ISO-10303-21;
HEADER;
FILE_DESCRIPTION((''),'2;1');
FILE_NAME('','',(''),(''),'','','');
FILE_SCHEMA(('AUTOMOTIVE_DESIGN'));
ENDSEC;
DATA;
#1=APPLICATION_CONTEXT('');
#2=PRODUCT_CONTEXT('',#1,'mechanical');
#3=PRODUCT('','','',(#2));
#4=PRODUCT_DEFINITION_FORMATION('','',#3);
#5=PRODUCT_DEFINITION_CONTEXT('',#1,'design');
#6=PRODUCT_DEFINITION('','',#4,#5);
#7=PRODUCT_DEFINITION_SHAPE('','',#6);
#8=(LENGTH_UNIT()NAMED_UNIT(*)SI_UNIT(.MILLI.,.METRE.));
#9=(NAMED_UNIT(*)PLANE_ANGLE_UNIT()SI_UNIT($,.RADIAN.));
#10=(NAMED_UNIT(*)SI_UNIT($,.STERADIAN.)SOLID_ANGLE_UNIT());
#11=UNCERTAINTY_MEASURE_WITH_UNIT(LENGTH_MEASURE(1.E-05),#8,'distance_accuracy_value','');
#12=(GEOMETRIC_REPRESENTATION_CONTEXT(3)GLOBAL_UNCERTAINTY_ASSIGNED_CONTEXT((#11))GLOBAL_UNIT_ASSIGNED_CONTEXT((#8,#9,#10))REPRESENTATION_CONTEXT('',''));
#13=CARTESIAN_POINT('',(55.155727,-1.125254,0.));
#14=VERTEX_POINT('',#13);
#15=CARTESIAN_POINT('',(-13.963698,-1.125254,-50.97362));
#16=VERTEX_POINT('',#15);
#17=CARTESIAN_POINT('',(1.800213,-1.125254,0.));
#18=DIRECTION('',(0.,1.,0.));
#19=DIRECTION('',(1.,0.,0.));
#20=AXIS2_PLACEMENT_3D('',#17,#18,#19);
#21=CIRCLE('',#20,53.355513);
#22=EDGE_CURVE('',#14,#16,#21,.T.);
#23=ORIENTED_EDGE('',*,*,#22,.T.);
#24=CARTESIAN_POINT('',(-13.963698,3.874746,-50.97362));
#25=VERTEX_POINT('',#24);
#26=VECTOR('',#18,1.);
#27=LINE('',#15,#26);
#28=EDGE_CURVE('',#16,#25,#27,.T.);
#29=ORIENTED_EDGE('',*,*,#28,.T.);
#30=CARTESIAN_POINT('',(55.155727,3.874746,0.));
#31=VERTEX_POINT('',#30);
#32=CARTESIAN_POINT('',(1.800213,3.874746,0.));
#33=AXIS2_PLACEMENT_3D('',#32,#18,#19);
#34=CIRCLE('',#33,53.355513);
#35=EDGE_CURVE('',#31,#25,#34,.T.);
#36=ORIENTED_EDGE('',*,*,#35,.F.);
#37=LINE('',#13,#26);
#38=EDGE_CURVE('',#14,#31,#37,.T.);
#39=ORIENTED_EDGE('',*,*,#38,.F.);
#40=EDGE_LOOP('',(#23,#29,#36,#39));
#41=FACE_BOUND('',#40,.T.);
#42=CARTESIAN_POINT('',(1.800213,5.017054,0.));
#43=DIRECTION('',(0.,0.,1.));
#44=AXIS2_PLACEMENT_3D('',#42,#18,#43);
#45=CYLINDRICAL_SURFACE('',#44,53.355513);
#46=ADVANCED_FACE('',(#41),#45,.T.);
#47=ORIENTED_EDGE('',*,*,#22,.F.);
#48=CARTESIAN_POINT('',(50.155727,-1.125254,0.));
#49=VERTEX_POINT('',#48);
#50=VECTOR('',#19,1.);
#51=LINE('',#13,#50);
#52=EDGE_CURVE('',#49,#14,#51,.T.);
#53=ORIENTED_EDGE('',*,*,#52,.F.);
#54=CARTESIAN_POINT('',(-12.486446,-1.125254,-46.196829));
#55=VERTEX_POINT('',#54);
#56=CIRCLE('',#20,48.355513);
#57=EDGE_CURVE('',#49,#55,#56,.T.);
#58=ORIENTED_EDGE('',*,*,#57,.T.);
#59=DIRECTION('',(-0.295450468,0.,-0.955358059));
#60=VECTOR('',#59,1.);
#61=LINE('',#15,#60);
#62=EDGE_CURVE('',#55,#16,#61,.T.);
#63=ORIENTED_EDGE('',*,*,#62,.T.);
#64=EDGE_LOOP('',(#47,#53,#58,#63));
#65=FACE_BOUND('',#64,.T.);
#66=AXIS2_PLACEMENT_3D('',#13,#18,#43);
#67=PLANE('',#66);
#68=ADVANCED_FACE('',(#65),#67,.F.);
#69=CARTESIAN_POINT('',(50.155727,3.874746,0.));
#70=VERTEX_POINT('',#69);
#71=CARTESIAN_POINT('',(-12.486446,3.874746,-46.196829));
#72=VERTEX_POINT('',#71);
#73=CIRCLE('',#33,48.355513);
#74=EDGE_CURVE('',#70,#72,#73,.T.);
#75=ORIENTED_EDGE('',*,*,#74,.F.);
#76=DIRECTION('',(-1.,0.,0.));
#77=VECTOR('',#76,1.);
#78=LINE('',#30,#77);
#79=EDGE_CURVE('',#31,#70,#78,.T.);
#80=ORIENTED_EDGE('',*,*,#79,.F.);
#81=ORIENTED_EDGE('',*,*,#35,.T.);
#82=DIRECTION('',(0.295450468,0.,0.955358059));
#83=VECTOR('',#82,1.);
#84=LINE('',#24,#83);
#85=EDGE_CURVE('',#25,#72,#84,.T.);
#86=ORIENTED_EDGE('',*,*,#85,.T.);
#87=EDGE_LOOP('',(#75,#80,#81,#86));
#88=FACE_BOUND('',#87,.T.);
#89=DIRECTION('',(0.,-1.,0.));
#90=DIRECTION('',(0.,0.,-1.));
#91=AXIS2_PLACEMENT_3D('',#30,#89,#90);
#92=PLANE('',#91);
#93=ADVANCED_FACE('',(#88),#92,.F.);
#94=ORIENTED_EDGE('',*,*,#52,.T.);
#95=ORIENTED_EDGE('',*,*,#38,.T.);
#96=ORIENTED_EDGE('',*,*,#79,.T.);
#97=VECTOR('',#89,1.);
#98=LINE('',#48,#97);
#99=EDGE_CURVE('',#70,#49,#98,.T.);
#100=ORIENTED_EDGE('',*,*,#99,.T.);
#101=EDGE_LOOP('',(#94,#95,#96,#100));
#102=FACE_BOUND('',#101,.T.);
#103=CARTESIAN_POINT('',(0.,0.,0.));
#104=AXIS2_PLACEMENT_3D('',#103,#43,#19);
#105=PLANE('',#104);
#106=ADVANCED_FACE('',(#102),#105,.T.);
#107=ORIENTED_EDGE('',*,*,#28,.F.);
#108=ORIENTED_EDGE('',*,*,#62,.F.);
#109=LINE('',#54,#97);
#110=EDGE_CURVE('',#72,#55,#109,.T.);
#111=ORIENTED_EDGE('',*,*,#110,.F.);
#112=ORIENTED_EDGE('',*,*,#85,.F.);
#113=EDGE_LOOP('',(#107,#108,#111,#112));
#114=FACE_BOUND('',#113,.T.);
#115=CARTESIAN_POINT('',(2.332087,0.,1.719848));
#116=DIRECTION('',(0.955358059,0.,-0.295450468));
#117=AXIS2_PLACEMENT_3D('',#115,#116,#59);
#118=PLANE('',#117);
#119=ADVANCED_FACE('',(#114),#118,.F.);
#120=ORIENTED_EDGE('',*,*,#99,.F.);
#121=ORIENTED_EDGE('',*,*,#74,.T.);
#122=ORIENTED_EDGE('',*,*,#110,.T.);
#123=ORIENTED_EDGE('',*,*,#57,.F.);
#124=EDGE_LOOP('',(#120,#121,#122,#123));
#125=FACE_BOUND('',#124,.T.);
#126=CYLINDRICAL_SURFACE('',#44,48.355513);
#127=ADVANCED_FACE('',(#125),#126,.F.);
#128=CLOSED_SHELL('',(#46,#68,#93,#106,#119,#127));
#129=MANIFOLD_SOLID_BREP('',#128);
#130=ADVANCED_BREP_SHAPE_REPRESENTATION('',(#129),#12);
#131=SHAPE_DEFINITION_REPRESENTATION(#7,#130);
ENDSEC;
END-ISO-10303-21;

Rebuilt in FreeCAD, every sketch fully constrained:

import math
import FreeCAD as App
import Part
import Sketcher

V = App.Vector


def add_polygon(sketch, points):
    """Adds a closed chain of lines whose ends are joined by coincident constraints."""
    first, n = sketch.GeometryCount, len(points)
    for a, b in zip(points, points[1:] + points[:1]):
        sketch.addGeometry(Part.LineSegment(App.Vector(*a, 0), App.Vector(*b, 0)), False)
    for i in range(n):
        sketch.addConstraint(Sketcher.Constraint("Coincident", first + i, 2, first + (i + 1) % n, 1))

doc = App.newDocument("Part")
body = doc.addObject("PartDesign::Body", "Body")

sketch1 = body.newObject("Sketcher::SketchObject", "Sketch")
sketch1.AttachmentSupport = (doc.getObject("XY_Plane"), [""])
sketch1.MapMode = "FlatFace"
add_polygon(sketch1, [(50, 4), (50, -1), (55, -1), (55, 4)])
sketch1.addConstraint([
    Sketcher.Constraint("Vertical", 0),
    Sketcher.Constraint("Horizontal", 1),
    Sketcher.Constraint("Vertical", 2),
    Sketcher.Constraint("Horizontal", 3),
    Sketcher.Constraint("Equal", 3, 0),
    Sketcher.Constraint("DistanceX", 1, 1, 1, 2, 5.0),
    Sketcher.Constraint("DistanceX", -1, 1, 0, 2, 50.155727),
    Sketcher.Constraint("DistanceY", 0, 2, -1, 1, 1.125254),
])

sketch2 = body.newObject("Sketcher::SketchObject", "Sketch001")
sketch2.AttachmentSupport = (doc.getObject("XZ_Plane"), [""])
sketch2.MapMode = "FlatFace"
sketch2.AttachmentOffset = App.Placement(V(0, 0, -5.017054), App.Rotation())
sketch2.addGeometry(Part.ArcOfCircle(Part.Circle(V(2, 0, 0), V(0, 0, 1), 41), math.radians(-107), math.radians(0)), False)
sketch2.addConstraint([
    Sketcher.Constraint("PointOnObject", 0, 3, -1),
    Sketcher.Constraint("PointOnObject", 0, 2, -1),
    Sketcher.Constraint("Radius", 0, 41.0),
    Sketcher.Constraint("DistanceY", 0, 1, -1, 1, 39.16968),
    Sketcher.Constraint("DistanceX", -1, 1, 0, 3, 1.800213),
])
doc.recompute()

additivepipe = body.newObject("PartDesign::AdditivePipe", "AdditivePipe")
additivepipe.Profile = sketch1
additivepipe.Spine = (sketch2, ["Edge1"])

doc.recompute()
